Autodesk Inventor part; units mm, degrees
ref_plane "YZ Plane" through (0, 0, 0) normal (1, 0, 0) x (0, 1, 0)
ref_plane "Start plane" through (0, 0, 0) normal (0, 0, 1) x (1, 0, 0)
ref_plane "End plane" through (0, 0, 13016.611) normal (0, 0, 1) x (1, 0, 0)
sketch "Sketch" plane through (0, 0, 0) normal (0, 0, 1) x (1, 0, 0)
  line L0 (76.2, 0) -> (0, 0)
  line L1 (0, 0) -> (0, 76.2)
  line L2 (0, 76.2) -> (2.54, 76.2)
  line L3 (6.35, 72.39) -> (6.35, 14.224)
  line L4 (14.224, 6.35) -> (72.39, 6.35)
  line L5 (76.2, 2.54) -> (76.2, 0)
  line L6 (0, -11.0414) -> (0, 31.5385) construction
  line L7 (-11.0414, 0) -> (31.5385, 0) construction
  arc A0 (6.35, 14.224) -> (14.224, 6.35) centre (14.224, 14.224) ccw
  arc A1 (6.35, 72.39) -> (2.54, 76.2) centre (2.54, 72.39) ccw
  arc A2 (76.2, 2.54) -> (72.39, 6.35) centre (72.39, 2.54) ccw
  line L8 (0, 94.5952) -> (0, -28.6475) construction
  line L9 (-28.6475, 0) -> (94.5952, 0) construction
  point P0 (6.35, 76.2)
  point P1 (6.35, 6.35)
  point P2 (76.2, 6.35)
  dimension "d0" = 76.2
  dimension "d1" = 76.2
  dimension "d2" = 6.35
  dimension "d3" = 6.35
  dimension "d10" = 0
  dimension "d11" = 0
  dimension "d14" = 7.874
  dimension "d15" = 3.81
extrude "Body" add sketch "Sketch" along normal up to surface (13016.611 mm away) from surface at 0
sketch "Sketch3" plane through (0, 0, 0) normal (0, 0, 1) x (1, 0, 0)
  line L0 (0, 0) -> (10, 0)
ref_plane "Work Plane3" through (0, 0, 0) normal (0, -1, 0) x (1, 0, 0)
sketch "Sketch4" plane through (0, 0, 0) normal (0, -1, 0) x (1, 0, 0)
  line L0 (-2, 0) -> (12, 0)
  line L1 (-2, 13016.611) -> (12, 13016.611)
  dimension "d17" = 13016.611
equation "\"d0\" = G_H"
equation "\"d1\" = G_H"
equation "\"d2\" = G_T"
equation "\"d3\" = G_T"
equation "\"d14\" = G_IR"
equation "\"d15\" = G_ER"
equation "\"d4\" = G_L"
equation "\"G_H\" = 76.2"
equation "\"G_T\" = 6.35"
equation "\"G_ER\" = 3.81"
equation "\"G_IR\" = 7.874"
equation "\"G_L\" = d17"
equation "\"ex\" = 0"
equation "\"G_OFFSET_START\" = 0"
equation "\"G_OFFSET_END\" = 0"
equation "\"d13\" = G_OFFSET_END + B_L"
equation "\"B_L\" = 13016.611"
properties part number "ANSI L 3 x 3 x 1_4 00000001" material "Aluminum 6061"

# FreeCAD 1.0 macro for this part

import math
import FreeCAD as App
import Part
import Sketcher
Q = App.Units.Quantity

doc = App.newDocument("Part")
body = doc.addObject("PartDesign::Body", "Body")

sketch1 = body.newObject("Sketcher::SketchObject", "Sketch")
sketch1.AttachmentSupport = (doc.getObject("XY_Plane"), [""])
sketch1.MapMode = "FlatFace"
sketch1.addGeometry([
    Part.LineSegment(App.Vector(0, 0, 0), App.Vector(76.2, 0, 0)),
    Part.LineSegment(App.Vector(76.2, 0, 0), App.Vector(76.2, 2.5, 0)),
    Part.ArcOfCircle(Part.Circle(App.Vector(72.4, 2.5, 0), App.Vector(0, 0, 1), 3.8), math.radians(0), math.radians(90)),
    Part.LineSegment(App.Vector(72.4, 6.3, 0), App.Vector(14.2, 6.3, 0)),
    Part.ArcOfCircle(Part.Circle(App.Vector(14.2, 14.2, 0), App.Vector(0, 0, 1), 7.9), math.radians(180), math.radians(270)),
    Part.LineSegment(App.Vector(6.3, 14.2, 0), App.Vector(6.3, 72.4, 0)),
    Part.ArcOfCircle(Part.Circle(App.Vector(2.5, 72.4, 0), App.Vector(0, 0, 1), 3.8), math.radians(0), math.radians(90)),
    Part.LineSegment(App.Vector(2.5, 76.2, 0), App.Vector(0, 76.2, 0)),
    Part.LineSegment(App.Vector(0, 76.2, 0), App.Vector(0, 0, 0)),
], False)
sketch1.addConstraint([
    Sketcher.Constraint("Coincident", 0, 2, 1, 1),
    Sketcher.Constraint("Tangent", 1, 2, 2, 1),
    Sketcher.Constraint("Tangent", 2, 2, 3, 1),
    Sketcher.Constraint("Tangent", 3, 2, 4, 2),
    Sketcher.Constraint("Tangent", 4, 1, 5, 1),
    Sketcher.Constraint("Tangent", 5, 2, 6, 1),
    Sketcher.Constraint("Tangent", 6, 2, 7, 1),
    Sketcher.Constraint("Coincident", 7, 2, 8, 1),
    Sketcher.Constraint("Coincident", 8, 2, 0, 1),
    Sketcher.Constraint("Horizontal", 0),
    Sketcher.Constraint("Vertical", 1),
    Sketcher.Constraint("Horizontal", 3),
    Sketcher.Constraint("Vertical", 5),
    Sketcher.Constraint("Horizontal", 7),
    Sketcher.Constraint("Vertical", 8),
    Sketcher.Constraint("Coincident", 8, 2, -1, 1),
    Sketcher.Constraint("Equal", 2, 6),
    Sketcher.Constraint("Equal", 7, 1),
    Sketcher.Constraint("Equal", 3, 5),
    Sketcher.Constraint("DistanceX", 0, 1, 0, 2, Q("3 in")),
    Sketcher.Constraint("Radius", 2, Q("0.15 in")),
    Sketcher.Constraint("Radius", 4, Q("0.31 in")),
    Sketcher.Constraint("DistanceY", -1, 1, 2, 2, Q("0.25 in")),
])
pad1 = body.newObject("PartDesign::Pad", "Pad")
pad1.Profile = sketch1
pad1.Length = Q("512.465 in")

doc.recompute()
